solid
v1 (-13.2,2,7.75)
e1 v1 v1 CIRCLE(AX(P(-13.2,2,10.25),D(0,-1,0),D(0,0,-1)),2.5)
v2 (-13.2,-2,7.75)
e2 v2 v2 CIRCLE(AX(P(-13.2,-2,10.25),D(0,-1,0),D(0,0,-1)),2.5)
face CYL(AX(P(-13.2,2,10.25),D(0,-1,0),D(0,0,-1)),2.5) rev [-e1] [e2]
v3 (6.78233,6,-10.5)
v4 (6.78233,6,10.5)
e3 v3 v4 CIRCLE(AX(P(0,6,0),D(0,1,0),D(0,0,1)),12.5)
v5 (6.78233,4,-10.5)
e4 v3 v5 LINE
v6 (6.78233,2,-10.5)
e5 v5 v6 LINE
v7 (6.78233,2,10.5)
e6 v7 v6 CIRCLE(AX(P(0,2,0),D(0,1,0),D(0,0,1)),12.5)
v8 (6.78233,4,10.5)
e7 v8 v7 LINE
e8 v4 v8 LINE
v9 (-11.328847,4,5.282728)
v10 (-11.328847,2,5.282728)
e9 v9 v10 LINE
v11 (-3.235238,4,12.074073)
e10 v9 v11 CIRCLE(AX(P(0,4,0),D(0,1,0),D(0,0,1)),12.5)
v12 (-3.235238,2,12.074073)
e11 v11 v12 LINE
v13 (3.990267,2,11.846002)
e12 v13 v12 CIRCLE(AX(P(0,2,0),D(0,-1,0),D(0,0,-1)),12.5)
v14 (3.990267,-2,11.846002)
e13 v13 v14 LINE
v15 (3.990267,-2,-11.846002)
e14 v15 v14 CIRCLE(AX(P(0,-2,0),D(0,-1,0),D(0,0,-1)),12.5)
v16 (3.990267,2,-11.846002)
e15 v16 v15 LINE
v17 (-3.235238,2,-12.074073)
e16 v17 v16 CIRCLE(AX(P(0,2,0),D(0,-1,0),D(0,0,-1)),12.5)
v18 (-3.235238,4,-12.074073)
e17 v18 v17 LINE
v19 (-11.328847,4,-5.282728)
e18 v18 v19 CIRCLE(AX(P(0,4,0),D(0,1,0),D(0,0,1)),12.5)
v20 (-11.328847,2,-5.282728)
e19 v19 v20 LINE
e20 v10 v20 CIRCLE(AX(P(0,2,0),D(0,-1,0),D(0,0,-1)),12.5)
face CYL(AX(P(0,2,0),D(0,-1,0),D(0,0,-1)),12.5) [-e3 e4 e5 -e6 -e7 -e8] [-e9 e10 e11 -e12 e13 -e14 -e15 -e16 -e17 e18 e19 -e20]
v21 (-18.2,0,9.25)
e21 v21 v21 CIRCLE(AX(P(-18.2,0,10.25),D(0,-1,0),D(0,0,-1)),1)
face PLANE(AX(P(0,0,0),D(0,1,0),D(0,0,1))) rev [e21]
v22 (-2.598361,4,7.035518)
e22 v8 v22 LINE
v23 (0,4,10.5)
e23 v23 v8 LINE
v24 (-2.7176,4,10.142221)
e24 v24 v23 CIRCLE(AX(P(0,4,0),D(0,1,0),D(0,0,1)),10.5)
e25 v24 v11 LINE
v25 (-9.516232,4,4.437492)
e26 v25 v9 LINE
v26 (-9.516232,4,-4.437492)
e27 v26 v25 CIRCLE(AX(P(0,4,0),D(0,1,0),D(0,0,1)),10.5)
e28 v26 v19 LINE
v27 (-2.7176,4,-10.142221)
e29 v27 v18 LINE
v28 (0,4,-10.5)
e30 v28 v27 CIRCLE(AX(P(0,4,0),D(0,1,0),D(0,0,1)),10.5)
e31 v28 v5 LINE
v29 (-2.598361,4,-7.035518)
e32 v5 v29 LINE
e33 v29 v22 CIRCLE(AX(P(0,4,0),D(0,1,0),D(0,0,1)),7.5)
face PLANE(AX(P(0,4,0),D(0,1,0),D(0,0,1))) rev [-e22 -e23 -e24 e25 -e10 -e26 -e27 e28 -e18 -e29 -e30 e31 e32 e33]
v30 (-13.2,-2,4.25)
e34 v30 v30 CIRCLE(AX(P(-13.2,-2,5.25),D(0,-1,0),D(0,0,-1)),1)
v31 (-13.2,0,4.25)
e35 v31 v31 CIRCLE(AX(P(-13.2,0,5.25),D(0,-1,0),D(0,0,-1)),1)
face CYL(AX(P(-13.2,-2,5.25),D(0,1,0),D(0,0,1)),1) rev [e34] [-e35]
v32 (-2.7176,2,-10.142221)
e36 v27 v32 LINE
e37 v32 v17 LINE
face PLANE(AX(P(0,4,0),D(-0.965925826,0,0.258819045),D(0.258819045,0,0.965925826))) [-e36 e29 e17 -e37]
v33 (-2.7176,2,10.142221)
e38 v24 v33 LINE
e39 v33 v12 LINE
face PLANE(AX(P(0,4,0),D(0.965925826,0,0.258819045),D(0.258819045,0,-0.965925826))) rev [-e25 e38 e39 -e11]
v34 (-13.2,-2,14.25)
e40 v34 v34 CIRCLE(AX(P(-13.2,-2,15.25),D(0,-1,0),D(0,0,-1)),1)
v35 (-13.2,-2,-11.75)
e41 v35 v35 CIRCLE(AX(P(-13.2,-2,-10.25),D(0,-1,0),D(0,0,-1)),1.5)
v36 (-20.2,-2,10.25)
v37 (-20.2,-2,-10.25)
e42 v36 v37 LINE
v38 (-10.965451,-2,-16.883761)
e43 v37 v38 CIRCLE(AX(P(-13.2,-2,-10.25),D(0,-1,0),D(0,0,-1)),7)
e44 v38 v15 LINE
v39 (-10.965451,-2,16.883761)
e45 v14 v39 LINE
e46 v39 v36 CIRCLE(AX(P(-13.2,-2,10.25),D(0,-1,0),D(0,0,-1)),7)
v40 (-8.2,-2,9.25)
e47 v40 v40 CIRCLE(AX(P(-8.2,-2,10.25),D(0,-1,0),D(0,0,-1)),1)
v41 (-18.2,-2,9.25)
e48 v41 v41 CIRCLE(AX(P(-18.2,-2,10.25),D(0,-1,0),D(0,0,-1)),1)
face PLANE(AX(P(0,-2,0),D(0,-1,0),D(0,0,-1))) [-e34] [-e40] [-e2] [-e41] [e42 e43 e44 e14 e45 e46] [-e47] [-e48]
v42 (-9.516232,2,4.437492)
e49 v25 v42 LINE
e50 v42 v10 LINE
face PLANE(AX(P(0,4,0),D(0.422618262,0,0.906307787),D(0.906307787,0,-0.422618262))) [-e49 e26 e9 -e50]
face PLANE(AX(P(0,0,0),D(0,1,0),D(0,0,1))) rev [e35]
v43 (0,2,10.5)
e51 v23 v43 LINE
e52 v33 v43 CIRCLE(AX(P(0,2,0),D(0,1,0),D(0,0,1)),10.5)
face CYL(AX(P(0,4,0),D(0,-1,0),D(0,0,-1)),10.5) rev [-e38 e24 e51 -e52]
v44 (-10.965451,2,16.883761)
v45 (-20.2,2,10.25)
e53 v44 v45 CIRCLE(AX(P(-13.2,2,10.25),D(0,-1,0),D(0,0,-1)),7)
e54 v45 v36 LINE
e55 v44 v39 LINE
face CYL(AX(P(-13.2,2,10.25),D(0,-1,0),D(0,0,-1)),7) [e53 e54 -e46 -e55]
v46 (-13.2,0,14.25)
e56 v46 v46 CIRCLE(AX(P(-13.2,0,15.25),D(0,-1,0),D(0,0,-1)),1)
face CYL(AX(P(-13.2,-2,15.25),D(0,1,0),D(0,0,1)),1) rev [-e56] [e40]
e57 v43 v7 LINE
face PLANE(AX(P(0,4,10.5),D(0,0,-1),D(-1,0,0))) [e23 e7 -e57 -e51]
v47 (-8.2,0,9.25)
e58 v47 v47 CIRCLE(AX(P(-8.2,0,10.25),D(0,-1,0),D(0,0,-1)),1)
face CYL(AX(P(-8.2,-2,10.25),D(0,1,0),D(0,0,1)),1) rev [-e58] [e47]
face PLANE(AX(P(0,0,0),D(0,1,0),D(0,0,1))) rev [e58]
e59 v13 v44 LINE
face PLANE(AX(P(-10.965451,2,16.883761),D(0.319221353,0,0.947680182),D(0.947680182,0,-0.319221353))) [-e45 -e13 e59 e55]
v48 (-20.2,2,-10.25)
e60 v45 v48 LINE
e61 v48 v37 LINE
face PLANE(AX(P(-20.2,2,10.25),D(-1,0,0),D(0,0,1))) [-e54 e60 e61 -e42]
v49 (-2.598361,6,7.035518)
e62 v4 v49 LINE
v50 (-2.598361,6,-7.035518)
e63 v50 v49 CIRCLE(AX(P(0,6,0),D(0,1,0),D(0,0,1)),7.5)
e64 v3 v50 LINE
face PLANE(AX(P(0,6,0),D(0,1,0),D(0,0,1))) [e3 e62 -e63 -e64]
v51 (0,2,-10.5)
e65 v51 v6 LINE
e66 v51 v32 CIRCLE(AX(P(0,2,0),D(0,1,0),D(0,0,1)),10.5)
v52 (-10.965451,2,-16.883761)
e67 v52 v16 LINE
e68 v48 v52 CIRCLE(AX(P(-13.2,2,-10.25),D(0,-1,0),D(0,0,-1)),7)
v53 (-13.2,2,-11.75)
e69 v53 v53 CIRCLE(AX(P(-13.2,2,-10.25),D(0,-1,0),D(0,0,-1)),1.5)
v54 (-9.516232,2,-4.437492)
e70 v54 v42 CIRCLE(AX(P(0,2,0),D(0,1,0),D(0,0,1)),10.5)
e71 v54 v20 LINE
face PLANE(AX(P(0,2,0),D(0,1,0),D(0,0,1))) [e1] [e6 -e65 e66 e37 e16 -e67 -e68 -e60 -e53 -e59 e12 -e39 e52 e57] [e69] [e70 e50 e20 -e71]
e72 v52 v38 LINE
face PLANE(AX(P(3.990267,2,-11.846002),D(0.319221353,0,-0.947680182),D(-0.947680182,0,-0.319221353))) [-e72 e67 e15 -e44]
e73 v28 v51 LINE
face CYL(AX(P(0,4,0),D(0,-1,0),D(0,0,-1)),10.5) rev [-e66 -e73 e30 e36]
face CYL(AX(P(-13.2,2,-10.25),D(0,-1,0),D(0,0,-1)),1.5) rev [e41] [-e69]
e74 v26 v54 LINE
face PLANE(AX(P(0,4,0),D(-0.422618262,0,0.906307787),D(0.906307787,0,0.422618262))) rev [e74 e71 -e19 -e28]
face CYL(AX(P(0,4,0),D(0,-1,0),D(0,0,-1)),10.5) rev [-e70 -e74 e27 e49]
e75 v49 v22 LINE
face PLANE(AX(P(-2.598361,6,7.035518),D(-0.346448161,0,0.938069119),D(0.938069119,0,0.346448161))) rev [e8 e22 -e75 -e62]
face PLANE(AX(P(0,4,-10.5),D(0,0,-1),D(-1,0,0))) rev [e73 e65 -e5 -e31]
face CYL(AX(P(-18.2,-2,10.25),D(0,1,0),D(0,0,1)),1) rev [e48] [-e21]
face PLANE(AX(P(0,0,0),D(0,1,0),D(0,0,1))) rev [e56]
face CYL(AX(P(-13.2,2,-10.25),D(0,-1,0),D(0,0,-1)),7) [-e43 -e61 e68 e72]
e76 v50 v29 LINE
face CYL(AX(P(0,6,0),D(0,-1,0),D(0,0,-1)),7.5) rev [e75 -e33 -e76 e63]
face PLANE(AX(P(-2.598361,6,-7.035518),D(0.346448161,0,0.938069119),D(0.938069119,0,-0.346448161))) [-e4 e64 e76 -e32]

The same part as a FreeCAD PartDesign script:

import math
import FreeCAD as App
import Part
import Sketcher
from FreeCAD import Vector
Q = App.Units.Quantity

doc = App.newDocument("Part")
body = doc.addObject("PartDesign::Body", "Body")

# Sketch on XZ plane
sketch1 = body.newObject("Sketcher::SketchObject", "Sketch")
sketch1.AttachmentSupport = (doc.getObject("XZ_Plane"), [""])
sketch1.MapMode = "FlatFace"
sketch1.addGeometry(Part.Circle(Vector(0, 0, 0), Vector(0, 0, 1), 12), False)
sketch1.addConstraint(Sketcher.Constraint("Coincident", 0, 3, -1, 1))
sketch1.addConstraint(Sketcher.Constraint("Diameter", 0, 25.0))
pad1 = body.newObject("PartDesign::Pad", "Pad")
pad1.Profile = sketch1
pad1.Length = 2
pad1.Reversed = True

# Sketch on XZ plane
sketch2 = body.newObject("Sketcher::SketchObject", "Sketch001")
sketch2.AttachmentSupport = (doc.getObject("XZ_Plane"), [""])
sketch2.MapMode = "FlatFace"
sketch2.AttachmentOffset = App.Placement(Vector(0, 0, -2), App.Rotation())
sketch2.addGeometry(Part.ArcOfCircle(Part.Circle(Vector(0, 0, 0), Vector(0, 0, 1), 12.5), math.radians(-180), math.radians(-155)), False)
sketch2.addGeometry(Part.ArcOfCircle(Part.Circle(Vector(0, 0, 0), Vector(0, 0, 1), 12.5), math.radians(155), math.radians(180)), False)
sketch2.addGeometry(Part.LineSegment(Vector(-11.3, 5.3, 0), Vector(-9.5, 4.4, 0)), False)
sketch2.addGeometry(Part.ArcOfCircle(Part.Circle(Vector(0, 0, 0), Vector(0, 0, 1), 10.5), math.radians(155), math.radians(180)), False)
sketch2.addGeometry(Part.ArcOfCircle(Part.Circle(Vector(0, 0, 0), Vector(0, 0, 1), 10.5), math.radians(180), math.radians(205)), False)
sketch2.addGeometry(Part.LineSegment(Vector(-9.5, -4.4, 0), Vector(-11.3, -5.3, 0)), False)
sketch2.addGeometry(Part.LineSegment(Vector(6.8, 10.5, 0), Vector(0, 10.5, 0)), False)
sketch2.addGeometry(Part.ArcOfCircle(Part.Circle(Vector(0, 0, 0), Vector(0, 0, 1), 10.5), math.radians(90), math.radians(105)), False)
sketch2.addGeometry(Part.LineSegment(Vector(-2.7, 10.1, 0), Vector(-3.2, 12.1, 0)), False)
sketch2.addGeometry(Part.ArcOfCircle(Part.Circle(Vector(0, 0, 0), Vector(0, 0, 1), 12.5), math.radians(57), math.radians(105)), False)
sketch2.addGeometry(Part.LineSegment(Vector(0, -10.5, 0), Vector(6.8, -10.5, 0)), False)
sketch2.addGeometry(Part.ArcOfCircle(Part.Circle(Vector(0, 0, 0), Vector(0, 0, 1), 12.5), math.radians(-105), math.radians(-57)), False)
sketch2.addGeometry(Part.LineSegment(Vector(-3.2, -12.1, 0), Vector(-2.7, -10.1, 0)), False)
sketch2.addGeometry(Part.ArcOfCircle(Part.Circle(Vector(0, 0, 0), Vector(0, 0, 1), 10.5), math.radians(-105), math.radians(-90)), False)
sketch2.addConstraint(Sketcher.Constraint("Tangent", 0, 1, 1, 2))
sketch2.addConstraint(Sketcher.Constraint("Coincident", 1, 1, 2, 1))
sketch2.addConstraint(Sketcher.Constraint("Coincident", 2, 2, 3, 1))
sketch2.addConstraint(Sketcher.Constraint("Tangent", 3, 2, 4, 1))
sketch2.addConstraint(Sketcher.Constraint("Coincident", 4, 2, 5, 1))
sketch2.addConstraint(Sketcher.Constraint("Coincident", 5, 2, 0, 2))
sketch2.addConstraint(Sketcher.Constraint("Tangent", 6, 2, 7, 1))
sketch2.addConstraint(Sketcher.Constraint("Coincident", 7, 2, 8, 1))
sketch2.addConstraint(Sketcher.Constraint("Coincident", 8, 2, 9, 2))
sketch2.addConstraint(Sketcher.Constraint("Coincident", 9, 1, 6, 1))
sketch2.addConstraint(Sketcher.Constraint("Coincident", 10, 2, 11, 2))
sketch2.addConstraint(Sketcher.Constraint("Coincident", 11, 1, 12, 1))
sketch2.addConstraint(Sketcher.Constraint("Coincident", 12, 2, 13, 1))
sketch2.addConstraint(Sketcher.Constraint("Tangent", 13, 2, 10, 1))
sketch2.addConstraint(Sketcher.Constraint("Horizontal", 6))
sketch2.addConstraint(Sketcher.Constraint("Horizontal", 10))
sketch2.addConstraint(Sketcher.Constraint("Coincident", 0, 3, -1, 1))
sketch2.addConstraint(Sketcher.Constraint("Coincident", 3, 3, -1, 1))
sketch2.addConstraint(Sketcher.Constraint("Coincident", 7, 3, -1, 1))
sketch2.addConstraint(Sketcher.Constraint("Coincident", 9, 3, -1, 1))
sketch2.addConstraint(Sketcher.Constraint("Coincident", 11, 3, -1, 1))
sketch2.addConstraint(Sketcher.Constraint("Coincident", 13, 3, -1, 1))
sketch2.addConstraint(Sketcher.Constraint("Equal", 0, 1))
sketch2.addConstraint(Sketcher.Constraint("Equal", 3, 4))
sketch2.addConstraint(Sketcher.Constraint("Equal", 4, 7))
sketch2.addConstraint(Sketcher.Constraint("Equal", 1, 9))
sketch2.addConstraint(Sketcher.Constraint("Equal", 9, 11))
sketch2.addConstraint(Sketcher.Constraint("Equal", 7, 13))
sketch2.addConstraint(Sketcher.Constraint("PointOnObject", 0, 1, -1))
sketch2.addConstraint(Sketcher.Constraint("PointOnObject", 3, 2, -1))
sketch2.addConstraint(Sketcher.Constraint("Vertical", 2, 2, 4, 2))
sketch2.addConstraint(Sketcher.Constraint("Vertical", 1, 1, 5, 2))
sketch2.addConstraint(Sketcher.Constraint("Vertical", 8, 2, 11, 1))
sketch2.addConstraint(Sketcher.Constraint("Vertical", 7, 2, 12, 2))
sketch2.addConstraint(Sketcher.Constraint("Radius", 0, 12.5))
sketch2.addConstraint(Sketcher.Constraint("Radius", 3, 10.5))
sketch2.addConstraint(Sketcher.Constraint("Angle", 2, Q("-25 deg")))
sketch2.addConstraint(Sketcher.Constraint("Angle", 8, Q("105 deg")))
sketch2.addConstraint(Sketcher.Constraint("DistanceX", 7, 2, -1, 1, 2.7176))
sketch2.addConstraint(Sketcher.Constraint("DistanceY", -1, 1, 1, 1, 5.282728))
pad2 = body.newObject("PartDesign::Pad", "Pad001")
pad2.Profile = sketch2
pad2.Length = 2
pad2.Reversed = True

# Sketch on XZ plane
sketch3 = body.newObject("Sketcher::SketchObject", "Sketch002")
sketch3.AttachmentSupport = (doc.getObject("XZ_Plane"), [""])
sketch3.MapMode = "FlatFace"
sketch3.AttachmentOffset = App.Placement(Vector(0, 0, -4), App.Rotation())
sketch3.addGeometry(Part.ArcOfCircle(Part.Circle(Vector(0, 0, 0), Vector(0, 0, 1), 12), math.radians(57), math.radians(155)), False)
sketch3.addGeometry(Part.LineSegment(Vector(7, 10, 0), Vector(-3, 7, 0)), False)
sketch3.addGeometry(Part.ArcOfCircle(Part.Circle(Vector(0, 0, 0), Vector(0, 0, 1), 8), math.radians(110), math.radians(250)), False)
sketch3.addGeometry(Part.LineSegment(Vector(-3, -7, 0), Vector(7, -10, 0)), False)
sketch3.addGeometry(Part.ArcOfCircle(Part.Circle(Vector(0, 0, 0), Vector(0, 0, 1), 12), math.radians(-155), math.radians(-57)), False)
sketch3.addGeometry(Part.ArcOfCircle(Part.Circle(Vector(0, 0, 0), Vector(0, 0, 1), 13), math.radians(155), math.radians(205)), False)
sketch3.addConstraint(Sketcher.Constraint("Coincident", 0, 1, 1, 1))
sketch3.addConstraint(Sketcher.Constraint("Tangent", 1, 2, 2, 1))
sketch3.addConstraint(Sketcher.Constraint("Tangent", 2, 2, 3, 1))
sketch3.addConstraint(Sketcher.Constraint("Coincident", 3, 2, 4, 2))
sketch3.addConstraint(Sketcher.Constraint("Tangent", 4, 1, 5, 2))
sketch3.addConstraint(Sketcher.Constraint("Tangent", 5, 1, 0, 2))
sketch3.addConstraint(Sketcher.Constraint("Coincident", 0, 3, -1, 1))
sketch3.addConstraint(Sketcher.Constraint("Coincident", 2, 3, -1, 1))
sketch3.addConstraint(Sketcher.Constraint("Coincident", 4, 3, -1, 1))
sketch3.addConstraint(Sketcher.Constraint("Vertical", 1, 2, 2, 2))
sketch3.addConstraint(Sketcher.Constraint("Vertical", 4, 1, 5, 1))
sketch3.addConstraint(Sketcher.Constraint("Radius", 0, 12.5))
sketch3.addConstraint(Sketcher.Constraint("Radius", 2, 7.5))
sketch3.addConstraint(Sketcher.Constraint("DistanceY", -1, 1, 0, 1, 10.5))
sketch3.addConstraint(Sketcher.Constraint("DistanceY", 4, 1, -1, 1, 5.282728))
pad3 = body.newObject("PartDesign::Pad", "Pad002")
pad3.Profile = sketch3
pad3.Length = 2
pad3.Reversed = True

# Sketch on XZ plane
sketch4 = body.newObject("Sketcher::SketchObject", "Sketch003")
sketch4.AttachmentSupport = (doc.getObject("XZ_Plane"), [""])
sketch4.MapMode = "FlatFace"
sketch4.addGeometry(Part.LineSegment(Vector(-20.2, 10.2, 0), Vector(-20.2, -10.2, 0)), False)
sketch4.addGeometry(Part.ArcOfCircle(Part.Circle(Vector(-13.2, -10.3, 0), Vector(0, 0, 1), 7), math.radians(180), math.radians(289)), False)
sketch4.addGeometry(Part.LineSegment(Vector(-11, -16.9, 0), Vector(4, -11.8, 0)), False)
sketch4.addGeometry(Part.ArcOfCircle(Part.Circle(Vector(0, 0, 0), Vector(0, 0, 1), 12.5), math.radians(-71), math.radians(71)), False)
sketch4.addGeometry(Part.LineSegment(Vector(4, 11.8, 0), Vector(-11, 16.9, 0)), False)
sketch4.addGeometry(Part.ArcOfCircle(Part.Circle(Vector(-13.2, 10.3, 0), Vector(0, 0, 1), 7), math.radians(71), math.radians(180)), False)
sketch4.addGeometry(Part.Circle(Vector(-13.2, -10.2, 0), Vector(0, 0, 1), 1.5), False)
sketch4.addGeometry(Part.Circle(Vector(-13.2, 10.2, 0), Vector(0, 0, 1), 2.5), False)
sketch4.addConstraint(Sketcher.Constraint("Tangent", 0, 2, 1, 1))
sketch4.addConstraint(Sketcher.Constraint("Tangent", 1, 2, 2, 1))
sketch4.addConstraint(Sketcher.Constraint("Tangent", 2, 2, 3, 1))
sketch4.addConstraint(Sketcher.Constraint("Tangent", 3, 2, 4, 1))
sketch4.addConstraint(Sketcher.Constraint("Tangent", 4, 2, 5, 1))
sketch4.addConstraint(Sketcher.Constraint("Tangent", 5, 2, 0, 1))
sketch4.addConstraint(Sketcher.Constraint("Vertical", 0))
sketch4.addConstraint(Sketcher.Constraint("Coincident", 3, 3, -1, 1))
sketch4.addConstraint(Sketcher.Constraint("Coincident", 6, 3, 1, 3))
sketch4.addConstraint(Sketcher.Constraint("Coincident", 7, 3, 5, 3))
sketch4.addConstraint(Sketcher.Constraint("Equal", 1, 5))
sketch4.addConstraint(Sketcher.Constraint("Vertical", 2, 2, 3, 2))
sketch4.addConstraint(Sketcher.Constraint("Diameter", 6, 3.0))
sketch4.addConstraint(Sketcher.Constraint("Diameter", 7, 5.0))
sketch4.addConstraint(Sketcher.Constraint("Radius", 1, 7.0))
sketch4.addConstraint(Sketcher.Constraint("Radius", 3, 12.5))
sketch4.addConstraint(Sketcher.Constraint("DistanceY", 0, 2, 0, 1, 20.5))
sketch4.addConstraint(Sketcher.Constraint("DistanceX", 1, 3, -1, 1, 13.2))
pad4 = body.newObject("PartDesign::Pad", "Pad003")
pad4.Profile = sketch4
pad4.Length = 2
pad4.Reversed = True

# Sketch on XZ plane
sketch5 = body.newObject("Sketcher::SketchObject", "Sketch004")
sketch5.AttachmentSupport = (doc.getObject("XZ_Plane"), [""])
sketch5.MapMode = "FlatFace"
sketch5.AttachmentOffset = App.Placement(Vector(0, 0, 2), App.Rotation())
sketch5.addGeometry(Part.LineSegment(Vector(4, 11.8, 0), Vector(-11, 16.9, 0)), False)
sketch5.addGeometry(Part.ArcOfCircle(Part.Circle(Vector(-13.2, 10.3, 0), Vector(0, 0, 1), 7), math.radians(71), math.radians(180)), False)
sketch5.addGeometry(Part.LineSegment(Vector(-20.2, 10.2, 0), Vector(-20.2, -10.2, 0)), False)
sketch5.addGeometry(Part.ArcOfCircle(Part.Circle(Vector(-13.2, -10.3, 0), Vector(0, 0, 1), 7), math.radians(180), math.radians(289)), False)
sketch5.addGeometry(Part.LineSegment(Vector(-11, -16.9, 0), Vector(4, -11.8, 0)), False)
sketch5.addGeometry(Part.ArcOfCircle(Part.Circle(Vector(0, 0, 0), Vector(0, 0, 1), 12.5), math.radians(-71), math.radians(71)), False)
sketch5.addGeometry(Part.Circle(Vector(-13.2, -10.2, 0), Vector(0, 0, 1), 1.5), False)
sketch5.addGeometry(Part.Circle(Vector(-18.2, 10.2, 0), Vector(0, 0, 1), 1), False)
sketch5.addGeometry(Part.Circle(Vector(-13.2, 5.2, 0), Vector(0, 0, 1), 1), False)
sketch5.addGeometry(Part.Circle(Vector(-13.2, 10.2, 0), Vector(0, 0, 1), 2.5), False)
sketch5.addGeometry(Part.Circle(Vector(-13.2, 15.2, 0), Vector(0, 0, 1), 1), False)
sketch5.addGeometry(Part.Circle(Vector(-8.2, 10.2, 0), Vector(0, 0, 1), 1), False)
sketch5.addConstraint(Sketcher.Constraint("Tangent", 0, 2, 1, 1))
sketch5.addConstraint(Sketcher.Constraint("Tangent", 1, 2, 2, 1))
sketch5.addConstraint(Sketcher.Constraint("Tangent", 2, 2, 3, 1))
sketch5.addConstraint(Sketcher.Constraint("Tangent", 3, 2, 4, 1))
sketch5.addConstraint(Sketcher.Constraint("Tangent", 4, 2, 5, 1))
sketch5.addConstraint(Sketcher.Constraint("Tangent", 5, 2, 0, 1))
sketch5.addConstraint(Sketcher.Constraint("Vertical", 2))
sketch5.addConstraint(Sketcher.Constraint("Coincident", 5, 3, -1, 1))
sketch5.addConstraint(Sketcher.Constraint("Coincident", 6, 3, 3, 3))
sketch5.addConstraint(Sketcher.Constraint("Coincident", 9, 3, 1, 3))
sketch5.addConstraint(Sketcher.Constraint("Equal", 1, 3))
sketch5.addConstraint(Sketcher.Constraint("Equal", 7, 8))
sketch5.addConstraint(Sketcher.Constraint("Equal", 8, 10))
sketch5.addConstraint(Sketcher.Constraint("Equal", 10, 11))
sketch5.addConstraint(Sketcher.Constraint("Horizontal", 1, 3, 7, 3))
sketch5.addConstraint(Sketcher.Constraint("Horizontal", 9, 3, 11, 3))
sketch5.addConstraint(Sketcher.Constraint("Vertical", 6, 3, 8, 3))
sketch5.addConstraint(Sketcher.Constraint("Vertical", 9, 3, 10, 3))
sketch5.addConstraint(Sketcher.Constraint("Vertical", 0, 2, 3, 2))
sketch5.addConstraint(Sketcher.Constraint("Diameter", 6, 3.0))
sketch5.addConstraint(Sketcher.Constraint("Diameter", 7, 2.0))
sketch5.addConstraint(Sketcher.Constraint("Diameter", 9, 5.0))
sketch5.addConstraint(Sketcher.Constraint("Radius", 1, 7.0))
sketch5.addConstraint(Sketcher.Constraint("Radius", 5, 12.5))
sketch5.addConstraint(Sketcher.Constraint("DistanceY", 2, 2, 2, 1, 20.5))
sketch5.addConstraint(Sketcher.Constraint("DistanceX", 7, 3, 1, 3, 5.0))
sketch5.addConstraint(Sketcher.Constraint("DistanceY", 8, 3, 1, 3, 5.0))
sketch5.addConstraint(Sketcher.Constraint("DistanceY", 1, 3, 10, 3, 5.0))
sketch5.addConstraint(Sketcher.Constraint("DistanceX", 9, 3, 11, 3, 5.0))
sketch5.addConstraint(Sketcher.Constraint("DistanceX", 1, 3, -1, 1, 13.2))
pad5 = body.newObject("PartDesign::Pad", "Pad004")
pad5.Profile = sketch5
pad5.Length = 2
pad5.Reversed = True

doc.recompute()
